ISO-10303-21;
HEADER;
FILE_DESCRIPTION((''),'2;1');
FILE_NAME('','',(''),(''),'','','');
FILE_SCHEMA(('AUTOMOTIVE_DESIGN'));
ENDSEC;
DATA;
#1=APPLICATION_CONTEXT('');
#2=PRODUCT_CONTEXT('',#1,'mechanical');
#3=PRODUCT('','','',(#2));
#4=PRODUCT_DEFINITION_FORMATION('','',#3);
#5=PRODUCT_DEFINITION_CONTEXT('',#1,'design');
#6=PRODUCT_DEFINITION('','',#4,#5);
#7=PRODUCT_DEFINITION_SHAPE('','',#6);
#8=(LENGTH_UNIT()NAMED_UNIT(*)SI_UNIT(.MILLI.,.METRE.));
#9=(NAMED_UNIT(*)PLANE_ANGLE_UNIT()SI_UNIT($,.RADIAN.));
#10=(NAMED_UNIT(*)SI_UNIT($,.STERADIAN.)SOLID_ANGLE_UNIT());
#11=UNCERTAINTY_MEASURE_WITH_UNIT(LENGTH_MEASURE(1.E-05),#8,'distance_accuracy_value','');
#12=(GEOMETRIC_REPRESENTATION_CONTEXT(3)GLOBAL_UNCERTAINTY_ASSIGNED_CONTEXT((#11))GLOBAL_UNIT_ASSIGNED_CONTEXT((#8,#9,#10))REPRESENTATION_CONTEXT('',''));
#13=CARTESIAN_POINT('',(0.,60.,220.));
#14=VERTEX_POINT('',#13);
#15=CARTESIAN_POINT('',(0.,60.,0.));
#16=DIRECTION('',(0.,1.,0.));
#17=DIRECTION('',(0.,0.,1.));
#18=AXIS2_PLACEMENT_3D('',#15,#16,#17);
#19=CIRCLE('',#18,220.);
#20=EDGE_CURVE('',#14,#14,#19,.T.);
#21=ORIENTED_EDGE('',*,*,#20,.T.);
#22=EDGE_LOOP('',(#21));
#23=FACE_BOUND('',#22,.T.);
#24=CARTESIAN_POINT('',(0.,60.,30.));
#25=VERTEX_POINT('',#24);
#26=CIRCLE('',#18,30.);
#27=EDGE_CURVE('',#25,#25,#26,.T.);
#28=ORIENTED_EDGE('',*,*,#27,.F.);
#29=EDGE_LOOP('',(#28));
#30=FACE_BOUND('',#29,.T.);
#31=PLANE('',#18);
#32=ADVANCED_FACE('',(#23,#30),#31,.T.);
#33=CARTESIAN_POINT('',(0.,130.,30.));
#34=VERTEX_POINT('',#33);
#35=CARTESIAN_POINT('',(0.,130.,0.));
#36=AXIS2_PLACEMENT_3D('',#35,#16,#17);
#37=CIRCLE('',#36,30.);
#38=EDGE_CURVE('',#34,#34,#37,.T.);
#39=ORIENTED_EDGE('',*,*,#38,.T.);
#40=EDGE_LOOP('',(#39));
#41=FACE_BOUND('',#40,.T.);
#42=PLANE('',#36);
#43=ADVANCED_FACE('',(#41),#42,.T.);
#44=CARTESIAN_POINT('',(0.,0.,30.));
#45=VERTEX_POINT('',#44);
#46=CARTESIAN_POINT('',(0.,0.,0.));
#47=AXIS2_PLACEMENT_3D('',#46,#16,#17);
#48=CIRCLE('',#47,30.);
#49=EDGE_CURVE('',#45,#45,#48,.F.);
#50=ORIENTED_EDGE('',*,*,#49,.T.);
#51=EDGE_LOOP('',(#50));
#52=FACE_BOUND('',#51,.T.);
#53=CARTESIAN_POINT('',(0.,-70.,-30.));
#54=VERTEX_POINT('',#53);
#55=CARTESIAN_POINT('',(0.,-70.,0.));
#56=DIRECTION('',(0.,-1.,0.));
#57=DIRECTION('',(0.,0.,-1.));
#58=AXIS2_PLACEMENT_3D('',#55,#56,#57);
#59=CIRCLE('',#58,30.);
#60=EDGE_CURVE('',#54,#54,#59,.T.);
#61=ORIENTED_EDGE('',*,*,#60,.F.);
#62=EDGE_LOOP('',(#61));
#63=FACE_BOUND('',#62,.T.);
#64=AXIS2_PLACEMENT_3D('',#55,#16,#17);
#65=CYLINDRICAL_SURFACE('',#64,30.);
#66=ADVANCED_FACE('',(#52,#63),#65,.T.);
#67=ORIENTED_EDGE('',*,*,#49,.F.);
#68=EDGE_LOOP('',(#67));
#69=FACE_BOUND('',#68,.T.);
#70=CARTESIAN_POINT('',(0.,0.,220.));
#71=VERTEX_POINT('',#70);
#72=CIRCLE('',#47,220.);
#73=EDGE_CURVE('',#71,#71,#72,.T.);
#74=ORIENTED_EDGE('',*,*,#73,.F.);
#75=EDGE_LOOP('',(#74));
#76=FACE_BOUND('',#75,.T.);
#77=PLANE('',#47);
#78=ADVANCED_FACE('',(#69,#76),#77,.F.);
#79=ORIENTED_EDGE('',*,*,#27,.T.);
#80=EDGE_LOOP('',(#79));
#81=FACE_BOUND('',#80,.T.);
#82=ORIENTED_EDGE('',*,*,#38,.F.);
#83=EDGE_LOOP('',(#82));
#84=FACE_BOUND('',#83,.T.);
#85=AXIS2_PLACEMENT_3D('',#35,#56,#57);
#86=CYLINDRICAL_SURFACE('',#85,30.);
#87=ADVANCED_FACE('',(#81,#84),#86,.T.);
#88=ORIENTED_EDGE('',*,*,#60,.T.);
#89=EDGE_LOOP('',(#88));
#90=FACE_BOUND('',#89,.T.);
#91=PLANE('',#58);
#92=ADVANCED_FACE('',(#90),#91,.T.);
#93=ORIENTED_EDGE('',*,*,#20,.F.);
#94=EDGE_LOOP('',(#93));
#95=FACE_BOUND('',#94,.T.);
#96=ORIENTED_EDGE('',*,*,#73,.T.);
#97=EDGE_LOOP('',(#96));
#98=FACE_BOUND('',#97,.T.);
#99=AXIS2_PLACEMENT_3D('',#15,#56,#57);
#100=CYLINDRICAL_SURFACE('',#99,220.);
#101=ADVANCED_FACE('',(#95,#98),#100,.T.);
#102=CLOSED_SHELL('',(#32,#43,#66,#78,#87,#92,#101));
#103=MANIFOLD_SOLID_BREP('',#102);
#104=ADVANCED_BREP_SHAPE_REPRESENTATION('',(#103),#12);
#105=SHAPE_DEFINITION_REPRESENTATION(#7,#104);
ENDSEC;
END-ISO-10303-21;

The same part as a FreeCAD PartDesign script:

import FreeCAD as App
import Part
import Sketcher
Q = App.Units.Quantity

doc = App.newDocument("Part")
body = doc.addObject("PartDesign::Body", "Body")

# Sketch on XZ plane
sketch1 = doc.addObject("Sketcher::SketchObject", "Sketch")
body.addObject(sketch1)
sketch1.AttachmentSupport = (doc.XZ_Plane, [""])
sketch1.MapMode = "FlatFace"
sketch1.addGeometry(Part.Circle(App.Vector(0, 0, 0), App.Vector(0, 0, 1), 220), False)
sketch1.addConstraint([
    Sketcher.Constraint("Coincident", 0, 3, -1, 1),
    Sketcher.Constraint("Diameter", 0, Q("440 mm")),
])
pad1 = doc.addObject("PartDesign::Pad", "Pad")
body.addObject(pad1)
pad1.Profile = sketch1
pad1.Length = 60
pad1.Reversed = True

# Sketch on XZ plane
sketch2 = doc.addObject("Sketcher::SketchObject", "Sketch001")
body.addObject(sketch2)
sketch2.AttachmentSupport = (doc.XZ_Plane, [""])
sketch2.MapMode = "FlatFace"
sketch2.AttachmentOffset = App.Placement(App.Vector(0, 0, -60), App.Rotation())
sketch2.addGeometry(Part.Circle(App.Vector(0, 0, 0), App.Vector(0, 0, 1), 30), False)
sketch2.addConstraint([
    Sketcher.Constraint("Coincident", 0, 3, -1, 1),
    Sketcher.Constraint("Diameter", 0, Q("60 mm")),
])
pad2 = doc.addObject("PartDesign::Pad", "Pad001")
body.addObject(pad2)
pad2.Profile = sketch2
pad2.Length = 70
pad2.Reversed = True

# Sketch on XZ plane
sketch3 = doc.addObject("Sketcher::SketchObject", "Sketch002")
body.addObject(sketch3)
sketch3.AttachmentSupport = (doc.XZ_Plane, [""])
sketch3.MapMode = "FlatFace"
sketch3.addGeometry(Part.Circle(App.Vector(0, 0, 0), App.Vector(0, 0, 1), 30), False)
sketch3.addConstraint([
    Sketcher.Constraint("Coincident", 0, 3, -1, 1),
    Sketcher.Constraint("Diameter", 0, Q("60 mm")),
])
pad3 = doc.addObject("PartDesign::Pad", "Pad002")
body.addObject(pad3)
pad3.Profile = sketch3
pad3.Length = 70

doc.recompute()
